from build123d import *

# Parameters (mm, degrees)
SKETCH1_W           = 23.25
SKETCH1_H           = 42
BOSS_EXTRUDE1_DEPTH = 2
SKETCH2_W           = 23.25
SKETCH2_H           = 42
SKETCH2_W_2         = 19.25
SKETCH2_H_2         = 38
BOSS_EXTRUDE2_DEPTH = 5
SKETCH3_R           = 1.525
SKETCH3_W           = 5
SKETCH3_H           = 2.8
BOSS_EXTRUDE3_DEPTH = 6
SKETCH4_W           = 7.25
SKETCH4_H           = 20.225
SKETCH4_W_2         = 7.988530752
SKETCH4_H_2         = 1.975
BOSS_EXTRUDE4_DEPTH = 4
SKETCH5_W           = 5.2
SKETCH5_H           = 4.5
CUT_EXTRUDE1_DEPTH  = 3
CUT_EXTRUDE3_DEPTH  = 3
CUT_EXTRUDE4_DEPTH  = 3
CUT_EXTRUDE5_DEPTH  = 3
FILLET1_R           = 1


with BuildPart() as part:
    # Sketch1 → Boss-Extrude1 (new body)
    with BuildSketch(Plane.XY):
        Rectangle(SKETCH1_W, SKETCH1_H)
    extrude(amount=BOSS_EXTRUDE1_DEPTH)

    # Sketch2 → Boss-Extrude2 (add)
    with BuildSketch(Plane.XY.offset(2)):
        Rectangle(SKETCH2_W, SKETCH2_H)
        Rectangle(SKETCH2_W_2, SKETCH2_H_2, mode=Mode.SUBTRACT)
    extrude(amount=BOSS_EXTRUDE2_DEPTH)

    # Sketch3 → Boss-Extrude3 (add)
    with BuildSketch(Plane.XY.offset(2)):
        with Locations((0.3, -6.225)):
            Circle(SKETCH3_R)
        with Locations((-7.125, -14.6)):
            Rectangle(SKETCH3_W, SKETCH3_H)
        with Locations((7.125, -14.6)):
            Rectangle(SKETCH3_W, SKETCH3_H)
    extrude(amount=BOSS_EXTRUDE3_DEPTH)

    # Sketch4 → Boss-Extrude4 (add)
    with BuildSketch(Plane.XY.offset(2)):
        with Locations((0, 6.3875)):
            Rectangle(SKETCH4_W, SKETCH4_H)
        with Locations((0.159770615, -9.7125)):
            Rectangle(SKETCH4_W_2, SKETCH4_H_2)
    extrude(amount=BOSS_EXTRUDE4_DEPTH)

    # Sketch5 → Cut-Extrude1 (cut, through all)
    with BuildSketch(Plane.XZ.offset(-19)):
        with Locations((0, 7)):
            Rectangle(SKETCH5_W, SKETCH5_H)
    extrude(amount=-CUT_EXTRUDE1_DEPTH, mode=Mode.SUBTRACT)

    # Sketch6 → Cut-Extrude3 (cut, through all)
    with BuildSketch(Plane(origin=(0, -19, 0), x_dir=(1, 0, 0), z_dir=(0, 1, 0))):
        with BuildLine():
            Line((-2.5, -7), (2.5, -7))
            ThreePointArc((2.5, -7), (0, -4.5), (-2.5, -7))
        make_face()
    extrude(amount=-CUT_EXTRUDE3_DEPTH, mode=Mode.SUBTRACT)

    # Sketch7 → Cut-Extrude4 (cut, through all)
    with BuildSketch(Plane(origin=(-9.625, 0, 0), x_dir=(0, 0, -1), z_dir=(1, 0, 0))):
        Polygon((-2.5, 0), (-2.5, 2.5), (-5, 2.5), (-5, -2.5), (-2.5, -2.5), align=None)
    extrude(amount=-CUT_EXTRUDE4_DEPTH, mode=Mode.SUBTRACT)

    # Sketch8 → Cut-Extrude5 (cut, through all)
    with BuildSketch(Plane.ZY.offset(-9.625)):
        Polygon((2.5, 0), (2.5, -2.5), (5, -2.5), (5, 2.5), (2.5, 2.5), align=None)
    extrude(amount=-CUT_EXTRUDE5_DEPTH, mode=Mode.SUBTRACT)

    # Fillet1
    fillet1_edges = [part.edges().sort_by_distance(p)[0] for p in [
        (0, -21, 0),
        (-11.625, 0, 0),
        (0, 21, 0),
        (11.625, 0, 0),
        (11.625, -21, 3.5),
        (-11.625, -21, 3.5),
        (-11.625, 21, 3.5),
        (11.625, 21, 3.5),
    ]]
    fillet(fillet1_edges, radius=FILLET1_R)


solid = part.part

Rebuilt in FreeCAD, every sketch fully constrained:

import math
import FreeCAD as App
import Part
import Sketcher

V = App.Vector


def edges_at(feature, points):
    """Names of the edges that pass closest to the given points."""
    edges = feature.Shape.Edges
    near = lambda p: min(range(len(edges)), key=lambda i: edges[i].distToShape(Part.Vertex(*p))[0])
    return sorted({f"Edge{near(p) + 1}" for p in points})

doc = App.newDocument("Part")
body = doc.addObject("PartDesign::Body", "Body")

# Sketch on XY plane
sketch1 = body.newObject("Sketcher::SketchObject", "Sketch")
sketch1.AttachmentSupport = (doc.getObject("XY_Plane"), [""])
sketch1.MapMode = "FlatFace"
sketch1.addGeometry([
    Part.LineSegment(V(-12, 21, 0), V(-12, -21, 0)),
    Part.LineSegment(V(-12, -21, 0), V(12, -21, 0)),
    Part.LineSegment(V(12, -21, 0), V(12, 21, 0)),
    Part.LineSegment(V(12, 21, 0), V(-12, 21, 0)),
], False)
sketch1.addConstraint([
    Sketcher.Constraint("Coincident", 0, 2, 1, 1),
    Sketcher.Constraint("Coincident", 1, 2, 2, 1),
    Sketcher.Constraint("Coincident", 2, 2, 3, 1),
    Sketcher.Constraint("Coincident", 3, 2, 0, 1),
    Sketcher.Constraint("Vertical", 0),
    Sketcher.Constraint("Horizontal", 1),
    Sketcher.Constraint("Vertical", 2),
    Sketcher.Constraint("Horizontal", 3),
    Sketcher.Constraint("Symmetric", 0, 2, 2, 2, -1, 1),
    Sketcher.Constraint("DistanceY", 0, 2, 0, 1, 42.0),
    Sketcher.Constraint("DistanceX", 1, 1, 1, 2, 23.25),
])
pad1 = body.newObject("PartDesign::Pad", "Pad")
pad1.Profile = sketch1
pad1.Length = 2

# Sketch on XY plane
sketch2 = body.newObject("Sketcher::SketchObject", "Sketch001")
sketch2.AttachmentSupport = (doc.getObject("XY_Plane"), [""])
sketch2.MapMode = "FlatFace"
sketch2.AttachmentOffset = App.Placement(V(0, 0, 2), App.Rotation())
sketch2.addGeometry([
    Part.LineSegment(V(-12, 21, 0), V(-12, -21, 0)),  # 0
    Part.LineSegment(V(-12, -21, 0), V(12, -21, 0)),  # 1
    Part.LineSegment(V(12, -21, 0), V(12, 21, 0)),  # 2
    Part.LineSegment(V(12, 21, 0), V(-12, 21, 0)),  # 3
    Part.LineSegment(V(10, -19, 0), V(-10, -19, 0)),  # 4
    Part.LineSegment(V(-10, -19, 0), V(-10, 19, 0)),  # 5
    Part.LineSegment(V(-10, 19, 0), V(10, 19, 0)),  # 6
    Part.LineSegment(V(10, 19, 0), V(10, -19, 0)),  # 7
], False)
sketch2.addConstraint([
    Sketcher.Constraint("Coincident", 0, 2, 1, 1),
    Sketcher.Constraint("Coincident", 1, 2, 2, 1),
    Sketcher.Constraint("Coincident", 2, 2, 3, 1),
    Sketcher.Constraint("Coincident", 3, 2, 0, 1),
    Sketcher.Constraint("Coincident", 4, 2, 5, 1),
    Sketcher.Constraint("Coincident", 5, 2, 6, 1),
    Sketcher.Constraint("Coincident", 6, 2, 7, 1),
    Sketcher.Constraint("Coincident", 7, 2, 4, 1),
    Sketcher.Constraint("Vertical", 0),
    Sketcher.Constraint("Horizontal", 1),
    Sketcher.Constraint("Vertical", 2),
    Sketcher.Constraint("Horizontal", 3),
    Sketcher.Constraint("Horizontal", 4),
    Sketcher.Constraint("Vertical", 5),
    Sketcher.Constraint("Horizontal", 6),
    Sketcher.Constraint("Vertical", 7),
    Sketcher.Constraint("Symmetric", 0, 2, 2, 2, -1, 1),
    Sketcher.Constraint("Symmetric", 4, 2, 6, 2, -1, 1),
    Sketcher.Constraint("DistanceY", 0, 2, 0, 1, 42.0),
    Sketcher.Constraint("DistanceY", 5, 1, 5, 2, 38.0),
    Sketcher.Constraint("DistanceX", 0, 2, 4, 2, 2.0),
    Sketcher.Constraint("DistanceX", 1, 1, 1, 2, 23.25),
])
pad2 = body.newObject("PartDesign::Pad", "Pad001")
pad2.Profile = sketch2
pad2.Length = 5

# Sketch on XY plane
sketch3 = body.newObject("Sketcher::SketchObject", "Sketch002")
sketch3.AttachmentSupport = (doc.getObject("XY_Plane"), [""])
sketch3.MapMode = "FlatFace"
sketch3.AttachmentOffset = App.Placement(V(0, 0, 2), App.Rotation())
sketch3.addGeometry([
    Part.Circle(V(0.3, -6.2, 0), V(0, 0, 1), 1.5),  # 0
    Part.LineSegment(V(-9.6, -13.2, 0), V(-9.6, -16, 0)),  # 1
    Part.LineSegment(V(-9.6, -16, 0), V(-4.6, -16, 0)),  # 2
    Part.LineSegment(V(-4.6, -16, 0), V(-4.6, -13.2, 0)),  # 3
    Part.LineSegment(V(-4.6, -13.2, 0), V(-9.6, -13.2, 0)),  # 4
    Part.LineSegment(V(4.6, -13.2, 0), V(4.6, -16, 0)),  # 5
    Part.LineSegment(V(4.6, -16, 0), V(9.6, -16, 0)),  # 6
    Part.LineSegment(V(9.6, -16, 0), V(9.6, -13.2, 0)),  # 7
    Part.LineSegment(V(9.6, -13.2, 0), V(4.6, -13.2, 0)),  # 8
], False)
sketch3.addConstraint([
    Sketcher.Constraint("Coincident", 1, 2, 2, 1),
    Sketcher.Constraint("Coincident", 2, 2, 3, 1),
    Sketcher.Constraint("Coincident", 3, 2, 4, 1),
    Sketcher.Constraint("Coincident", 4, 2, 1, 1),
    Sketcher.Constraint("Coincident", 5, 2, 6, 1),
    Sketcher.Constraint("Coincident", 6, 2, 7, 1),
    Sketcher.Constraint("Coincident", 7, 2, 8, 1),
    Sketcher.Constraint("Coincident", 8, 2, 5, 1),
    Sketcher.Constraint("Vertical", 1),
    Sketcher.Constraint("Horizontal", 2),
    Sketcher.Constraint("Vertical", 3),
    Sketcher.Constraint("Horizontal", 4),
    Sketcher.Constraint("Vertical", 5),
    Sketcher.Constraint("Horizontal", 6),
    Sketcher.Constraint("Vertical", 7),
    Sketcher.Constraint("Horizontal", 8),
    Sketcher.Constraint("Symmetric", 2, 2, 5, 2, -2),
    Sketcher.Constraint("Symmetric", 4, 2, 7, 2, -2),
    Sketcher.Constraint("Diameter", 0, 3.05),
    Sketcher.Constraint("DistanceX", 2, 1, 2, 2, 5.0),
    Sketcher.Constraint("DistanceY", 1, 2, 1, 1, 2.8),
    Sketcher.Constraint("DistanceY", 1, 2, -1, 1, 16.0),
    Sketcher.Constraint("DistanceX", -1, 1, 0, 3, 0.3),
    Sketcher.Constraint("DistanceX", 2, 2, 5, 2, 9.25),
    Sketcher.Constraint("DistanceY", 0, 3, -1, 1, 6.225),
])
pad3 = body.newObject("PartDesign::Pad", "Pad002")
pad3.Profile = sketch3
pad3.Length = 6

# Sketch on XY plane
sketch4 = body.newObject("Sketcher::SketchObject", "Sketch003")
sketch4.AttachmentSupport = (doc.getObject("XY_Plane"), [""])
sketch4.MapMode = "FlatFace"
sketch4.AttachmentOffset = App.Placement(V(0, 0, 2), App.Rotation())
sketch4.addGeometry([
    Part.LineSegment(V(-3.6, 16.5, 0), V(-3.6, -3.7, 0)),  # 0
    Part.LineSegment(V(-3.6, -3.7, 0), V(3.6, -3.7, 0)),  # 1
    Part.LineSegment(V(3.6, -3.7, 0), V(3.6, 16.5, 0)),  # 2
    Part.LineSegment(V(3.6, 16.5, 0), V(-3.6, 16.5, 0)),  # 3
    Part.LineSegment(V(-3.8, -8.7, 0), V(-3.8, -10.7, 0)),  # 4
    Part.LineSegment(V(-3.8, -10.7, 0), V(4.2, -10.7, 0)),  # 5
    Part.LineSegment(V(4.2, -10.7, 0), V(4.2, -8.7, 0)),  # 6
    Part.LineSegment(V(4.2, -8.7, 0), V(-3.8, -8.7, 0)),  # 7
], False)
sketch4.addConstraint([
    Sketcher.Constraint("Coincident", 0, 2, 1, 1),
    Sketcher.Constraint("Coincident", 1, 2, 2, 1),
    Sketcher.Constraint("Coincident", 2, 2, 3, 1),
    Sketcher.Constraint("Coincident", 3, 2, 0, 1),
    Sketcher.Constraint("Coincident", 4, 2, 5, 1),
    Sketcher.Constraint("Coincident", 5, 2, 6, 1),
    Sketcher.Constraint("Coincident", 6, 2, 7, 1),
    Sketcher.Constraint("Coincident", 7, 2, 4, 1),
    Sketcher.Constraint("Vertical", 0),
    Sketcher.Constraint("Horizontal", 1),
    Sketcher.Constraint("Vertical", 2),
    Sketcher.Constraint("Horizontal", 3),
    Sketcher.Constraint("Vertical", 4),
    Sketcher.Constraint("Horizontal", 5),
    Sketcher.Constraint("Vertical", 6),
    Sketcher.Constraint("Horizontal", 7),
    Sketcher.Constraint("DistanceY", 6, 2, 1, 2, 5.0),
    Sketcher.Constraint("DistanceX", 1, 1, 1, 2, 7.25),
    Sketcher.Constraint("DistanceY", -1, 1, 2, 2, 16.5),
    Sketcher.Constraint("DistanceY", 4, 2, -1, 1, 10.7),
    Sketcher.Constraint("DistanceY", 0, 2, 0, 1, 20.225),
    Sketcher.Constraint("DistanceX", 0, 2, -1, 1, 3.625),
    Sketcher.Constraint("DistanceX", 5, 1, 5, 2, 7.988531),
    Sketcher.Constraint("DistanceX", 4, 2, -1, 1, 3.834495),
])
pad4 = body.newObject("PartDesign::Pad", "Pad003")
pad4.Profile = sketch4
pad4.Length = 4

# Sketch on XZ plane
sketch5 = body.newObject("Sketcher::SketchObject", "Sketch004")
sketch5.AttachmentSupport = (doc.getObject("XZ_Plane"), [""])
sketch5.MapMode = "FlatFace"
sketch5.AttachmentOffset = App.Placement(V(0, 0, -19), App.Rotation())
sketch5.addGeometry([
    Part.LineSegment(V(-2.6, 9.2, 0), V(-2.6, 4.8, 0)),
    Part.LineSegment(V(-2.6, 4.8, 0), V(2.6, 4.8, 0)),
    Part.LineSegment(V(2.6, 4.8, 0), V(2.6, 9.2, 0)),
    Part.LineSegment(V(2.6, 9.2, 0), V(-2.6, 9.2, 0)),
], False)
sketch5.addConstraint([
    Sketcher.Constraint("Coincident", 0, 2, 1, 1),
    Sketcher.Constraint("Coincident", 1, 2, 2, 1),
    Sketcher.Constraint("Coincident", 2, 2, 3, 1),
    Sketcher.Constraint("Coincident", 3, 2, 0, 1),
    Sketcher.Constraint("Vertical", 0),
    Sketcher.Constraint("Horizontal", 1),
    Sketcher.Constraint("Vertical", 2),
    Sketcher.Constraint("Horizontal", 3),
    Sketcher.Constraint("DistanceX", 1, 1, 1, 2, 5.2),
    Sketcher.Constraint("DistanceY", 0, 2, 0, 1, 4.5),
    Sketcher.Constraint("DistanceX", 0, 2, -1, 1, 2.6),
    Sketcher.Constraint("DistanceY", -1, 1, 0, 2, 4.75),
])
pocket1 = body.newObject("PartDesign::Pocket", "Pocket")
pocket1.Profile = sketch5
pocket1.Type = "ThroughAll"

# Sketch on XZ plane
sketch6 = body.newObject("Sketcher::SketchObject", "Sketch005")
sketch6.AttachmentSupport = (doc.getObject("XZ_Plane"), [""])
sketch6.MapMode = "FlatFace"
sketch6.AttachmentOffset = App.Placement(V(0, 0, 19), App.Rotation())
sketch6.addGeometry([
    Part.LineSegment(V(-2.5, 7, 0), V(2.5, 7, 0)),
    Part.ArcOfCircle(Part.Circle(V(0, 7, 0), V(0, 0, 1), 2.5), math.radians(180), math.radians(360)),
], False)
sketch6.addConstraint([
    Sketcher.Constraint("Coincident", 0, 1, 1, 1),
    Sketcher.Constraint("Coincident", 1, 2, 0, 2),
    Sketcher.Constraint("Horizontal", 0),
    Sketcher.Constraint("PointOnObject", 1, 3, -2),
    Sketcher.Constraint("Horizontal", 1, 3, 0, 1),
    Sketcher.Constraint("Radius", 1, 2.5),
    Sketcher.Constraint("DistanceY", -1, 1, 1, 3, 7.0),
])
pocket2 = body.newObject("PartDesign::Pocket", "Pocket001")
pocket2.Profile = sketch6
pocket2.Type = "ThroughAll"
pocket2.Reversed = True

# Sketch on YZ plane
sketch7 = body.newObject("Sketcher::SketchObject", "Sketch006")
sketch7.AttachmentSupport = (doc.getObject("YZ_Plane"), [""])
sketch7.MapMode = "FlatFace"
sketch7.AttachmentOffset = App.Placement(V(0, 0, -9.625), App.Rotation())
sketch7.addGeometry([
    Part.LineSegment(V(2.5, 2.5, 0), V(2.5, 5, 0)),
    Part.LineSegment(V(2.5, 5, 0), V(-2.5, 5, 0)),
    Part.LineSegment(V(-2.5, 5, 0), V(-2.5, 2.5, 0)),
    Part.LineSegment(V(-2.5, 2.5, 0), V(2.5, 2.5, 0)),
], False)
sketch7.addConstraint([
    Sketcher.Constraint("Coincident", 0, 2, 1, 1),
    Sketcher.Constraint("Coincident", 1, 2, 2, 1),
    Sketcher.Constraint("Coincident", 2, 2, 3, 1),
    Sketcher.Constraint("Coincident", 3, 2, 0, 1),
    Sketcher.Constraint("Vertical", 0),
    Sketcher.Constraint("Horizontal", 1),
    Sketcher.Constraint("Vertical", 2),
    Sketcher.Constraint("Horizontal", 3),
    Sketcher.Constraint("DistanceX", 1, 2, 1, 1, 5.0),
    Sketcher.Constraint("DistanceY", 0, 1, 0, 2, 2.5),
    Sketcher.Constraint("DistanceY", -1, 1, 0, 2, 5.0),
    Sketcher.Constraint("DistanceX", -1, 1, 0, 2, 2.5),
])
pocket3 = body.newObject("PartDesign::Pocket", "Pocket002")
pocket3.Profile = sketch7
pocket3.Type = "ThroughAll"

# Sketch on YZ plane
sketch8 = body.newObject("Sketcher::SketchObject", "Sketch007")
sketch8.AttachmentSupport = (doc.getObject("YZ_Plane"), [""])
sketch8.MapMode = "FlatFace"
sketch8.AttachmentOffset = App.Placement(V(0, 0, 9.625), App.Rotation())
sketch8.addGeometry([
    Part.LineSegment(V(-2.5, 2.5, 0), V(-2.5, 5, 0)),
    Part.LineSegment(V(-2.5, 5, 0), V(2.5, 5, 0)),
    Part.LineSegment(V(2.5, 5, 0), V(2.5, 2.5, 0)),
    Part.LineSegment(V(2.5, 2.5, 0), V(-2.5, 2.5, 0)),
], False)
sketch8.addConstraint([
    Sketcher.Constraint("Coincident", 0, 2, 1, 1),
    Sketcher.Constraint("Coincident", 1, 2, 2, 1),
    Sketcher.Constraint("Coincident", 2, 2, 3, 1),
    Sketcher.Constraint("Coincident", 3, 2, 0, 1),
    Sketcher.Constraint("Vertical", 0),
    Sketcher.Constraint("Horizontal", 1),
    Sketcher.Constraint("Vertical", 2),
    Sketcher.Constraint("Horizontal", 3),
    Sketcher.Constraint("DistanceX", 1, 1, 1, 2, 5.0),
    Sketcher.Constraint("DistanceY", 0, 1, 0, 2, 2.5),
    Sketcher.Constraint("DistanceY", -1, 1, 0, 2, 5.0),
    Sketcher.Constraint("DistanceX", 0, 2, -1, 1, 2.5),
])
pocket4 = body.newObject("PartDesign::Pocket", "Pocket003")
pocket4.Profile = sketch8
pocket4.Type = "ThroughAll"
pocket4.Reversed = True
doc.recompute()

fillet = body.newObject("PartDesign::Fillet", "Fillet")
fillet.Base = (pocket4, edges_at(pocket4, [
    (0, -21, 0),
    (-11.625, 0, 0),
    (0, 21, 0),
    (11.625, 0, 0),
    (11.625, -21, 3.5),
    (-11.625, -21, 3.5),
    (-11.625, 21, 3.5),
    (11.625, 21, 3.5),
]))
fillet.Radius = 1

doc.recompute()
